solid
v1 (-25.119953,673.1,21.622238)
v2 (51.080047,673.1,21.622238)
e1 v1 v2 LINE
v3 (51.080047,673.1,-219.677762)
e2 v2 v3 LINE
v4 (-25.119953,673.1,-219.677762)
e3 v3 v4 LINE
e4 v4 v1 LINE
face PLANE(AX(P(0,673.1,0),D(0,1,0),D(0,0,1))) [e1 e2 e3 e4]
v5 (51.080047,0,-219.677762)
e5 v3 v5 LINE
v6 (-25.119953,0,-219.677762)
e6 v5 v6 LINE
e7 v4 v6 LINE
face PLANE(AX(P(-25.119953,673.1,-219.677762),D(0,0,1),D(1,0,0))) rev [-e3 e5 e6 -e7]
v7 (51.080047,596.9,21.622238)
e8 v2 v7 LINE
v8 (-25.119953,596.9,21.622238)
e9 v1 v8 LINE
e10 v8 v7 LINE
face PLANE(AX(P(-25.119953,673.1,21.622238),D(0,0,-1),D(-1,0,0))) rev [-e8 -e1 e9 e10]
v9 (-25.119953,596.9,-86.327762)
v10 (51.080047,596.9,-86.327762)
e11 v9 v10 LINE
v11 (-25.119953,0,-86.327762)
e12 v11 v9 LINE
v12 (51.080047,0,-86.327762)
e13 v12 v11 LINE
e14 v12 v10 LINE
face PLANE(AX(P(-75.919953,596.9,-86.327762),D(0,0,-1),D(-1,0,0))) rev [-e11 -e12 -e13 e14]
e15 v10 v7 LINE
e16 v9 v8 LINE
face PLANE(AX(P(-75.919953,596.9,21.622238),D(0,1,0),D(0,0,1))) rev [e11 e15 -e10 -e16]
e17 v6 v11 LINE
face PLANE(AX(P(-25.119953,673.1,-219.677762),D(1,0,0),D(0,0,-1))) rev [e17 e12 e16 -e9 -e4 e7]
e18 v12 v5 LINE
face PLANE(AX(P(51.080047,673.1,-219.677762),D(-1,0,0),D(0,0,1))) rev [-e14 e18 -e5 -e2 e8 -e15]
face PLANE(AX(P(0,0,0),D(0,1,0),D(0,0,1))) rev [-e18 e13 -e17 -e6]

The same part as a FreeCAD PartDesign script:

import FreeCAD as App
import Part
import Sketcher

V = App.Vector
Q = App.Units.Quantity

doc = App.newDocument("Part")
body = doc.addObject("PartDesign::Body", "Body")

# Sketch on XZ plane
sketch1 = body.newObject("Sketcher::SketchObject", "Sketch")
sketch1.AttachmentSupport = (doc.getObject("XZ_Plane"), [""])
sketch1.MapMode = "FlatFace"
sketch1.addGeometry(Part.LineSegment(V(-25, -220, 0), V(-25, 22, 0)), False)
sketch1.addGeometry(Part.LineSegment(V(-25, 22, 0), V(51, 22, 0)), False)
sketch1.addGeometry(Part.LineSegment(V(51, 22, 0), V(51, -220, 0)), False)
sketch1.addGeometry(Part.LineSegment(V(51, -220, 0), V(-25, -220, 0)), False)
sketch1.addConstraint(Sketcher.Constraint("Coincident", 0, 2, 1, 1))
sketch1.addConstraint(Sketcher.Constraint("Coincident", 1, 2, 2, 1))
sketch1.addConstraint(Sketcher.Constraint("Coincident", 2, 2, 3, 1))
sketch1.addConstraint(Sketcher.Constraint("Coincident", 3, 2, 0, 1))
sketch1.addConstraint(Sketcher.Constraint("Vertical", 0))
sketch1.addConstraint(Sketcher.Constraint("Horizontal", 1))
sketch1.addConstraint(Sketcher.Constraint("Vertical", 2))
sketch1.addConstraint(Sketcher.Constraint("Horizontal", 3))
sketch1.addConstraint(Sketcher.Constraint("DistanceX", 1, 1, 1, 2, Q("3 in")))
sketch1.addConstraint(Sketcher.Constraint("DistanceY", 0, 1, 0, 2, Q("9.5 in")))
sketch1.addConstraint(Sketcher.Constraint("DistanceX", 0, 2, -1, 1, Q("25.119953 mm")))
sketch1.addConstraint(Sketcher.Constraint("DistanceY", -1, 1, 0, 2, Q("21.622238 mm")))
pad1 = body.newObject("PartDesign::Pad", "Pad")
pad1.Profile = sketch1
pad1.Length = Q("26.5 in")
pad1.Reversed = True

# Sketch on YZ plane
sketch2 = body.newObject("Sketcher::SketchObject", "Sketch001")
sketch2.AttachmentSupport = (doc.getObject("YZ_Plane"), [""])
sketch2.MapMode = "FlatFace"
sketch2.AttachmentOffset = App.Placement(V(0, 0, 51.080047), App.Rotation())
sketch2.addGeometry(Part.LineSegment(V(597, 22, 0), V(0, 22, 0)), False)
sketch2.addGeometry(Part.LineSegment(V(0, 22, 0), V(0, -86, 0)), False)
sketch2.addGeometry(Part.LineSegment(V(0, -86, 0), V(597, -86, 0)), False)
sketch2.addGeometry(Part.LineSegment(V(597, -86, 0), V(597, 22, 0)), False)
sketch2.addConstraint(Sketcher.Constraint("Coincident", 0, 2, 1, 1))
sketch2.addConstraint(Sketcher.Constraint("Coincident", 1, 2, 2, 1))
sketch2.addConstraint(Sketcher.Constraint("Coincident", 2, 2, 3, 1))
sketch2.addConstraint(Sketcher.Constraint("Coincident", 3, 2, 0, 1))
sketch2.addConstraint(Sketcher.Constraint("Horizontal", 0))
sketch2.addConstraint(Sketcher.Constraint("Vertical", 1))
sketch2.addConstraint(Sketcher.Constraint("Horizontal", 2))
sketch2.addConstraint(Sketcher.Constraint("Vertical", 3))
sketch2.addConstraint(Sketcher.Constraint("PointOnObject", 0, 2, -2))
sketch2.addConstraint(Sketcher.Constraint("DistanceX", 0, 2, 0, 1, Q("23.5 in")))
sketch2.addConstraint(Sketcher.Constraint("DistanceY", 1, 2, 1, 1, Q("4.25 in")))
sketch2.addConstraint(Sketcher.Constraint("DistanceY", -1, 1, 0, 2, Q("21.622238 mm")))
pocket1 = body.newObject("PartDesign::Pocket", "Pocket")
pocket1.Profile = sketch2
pocket1.Length = Q("5 in")

doc.recompute()
